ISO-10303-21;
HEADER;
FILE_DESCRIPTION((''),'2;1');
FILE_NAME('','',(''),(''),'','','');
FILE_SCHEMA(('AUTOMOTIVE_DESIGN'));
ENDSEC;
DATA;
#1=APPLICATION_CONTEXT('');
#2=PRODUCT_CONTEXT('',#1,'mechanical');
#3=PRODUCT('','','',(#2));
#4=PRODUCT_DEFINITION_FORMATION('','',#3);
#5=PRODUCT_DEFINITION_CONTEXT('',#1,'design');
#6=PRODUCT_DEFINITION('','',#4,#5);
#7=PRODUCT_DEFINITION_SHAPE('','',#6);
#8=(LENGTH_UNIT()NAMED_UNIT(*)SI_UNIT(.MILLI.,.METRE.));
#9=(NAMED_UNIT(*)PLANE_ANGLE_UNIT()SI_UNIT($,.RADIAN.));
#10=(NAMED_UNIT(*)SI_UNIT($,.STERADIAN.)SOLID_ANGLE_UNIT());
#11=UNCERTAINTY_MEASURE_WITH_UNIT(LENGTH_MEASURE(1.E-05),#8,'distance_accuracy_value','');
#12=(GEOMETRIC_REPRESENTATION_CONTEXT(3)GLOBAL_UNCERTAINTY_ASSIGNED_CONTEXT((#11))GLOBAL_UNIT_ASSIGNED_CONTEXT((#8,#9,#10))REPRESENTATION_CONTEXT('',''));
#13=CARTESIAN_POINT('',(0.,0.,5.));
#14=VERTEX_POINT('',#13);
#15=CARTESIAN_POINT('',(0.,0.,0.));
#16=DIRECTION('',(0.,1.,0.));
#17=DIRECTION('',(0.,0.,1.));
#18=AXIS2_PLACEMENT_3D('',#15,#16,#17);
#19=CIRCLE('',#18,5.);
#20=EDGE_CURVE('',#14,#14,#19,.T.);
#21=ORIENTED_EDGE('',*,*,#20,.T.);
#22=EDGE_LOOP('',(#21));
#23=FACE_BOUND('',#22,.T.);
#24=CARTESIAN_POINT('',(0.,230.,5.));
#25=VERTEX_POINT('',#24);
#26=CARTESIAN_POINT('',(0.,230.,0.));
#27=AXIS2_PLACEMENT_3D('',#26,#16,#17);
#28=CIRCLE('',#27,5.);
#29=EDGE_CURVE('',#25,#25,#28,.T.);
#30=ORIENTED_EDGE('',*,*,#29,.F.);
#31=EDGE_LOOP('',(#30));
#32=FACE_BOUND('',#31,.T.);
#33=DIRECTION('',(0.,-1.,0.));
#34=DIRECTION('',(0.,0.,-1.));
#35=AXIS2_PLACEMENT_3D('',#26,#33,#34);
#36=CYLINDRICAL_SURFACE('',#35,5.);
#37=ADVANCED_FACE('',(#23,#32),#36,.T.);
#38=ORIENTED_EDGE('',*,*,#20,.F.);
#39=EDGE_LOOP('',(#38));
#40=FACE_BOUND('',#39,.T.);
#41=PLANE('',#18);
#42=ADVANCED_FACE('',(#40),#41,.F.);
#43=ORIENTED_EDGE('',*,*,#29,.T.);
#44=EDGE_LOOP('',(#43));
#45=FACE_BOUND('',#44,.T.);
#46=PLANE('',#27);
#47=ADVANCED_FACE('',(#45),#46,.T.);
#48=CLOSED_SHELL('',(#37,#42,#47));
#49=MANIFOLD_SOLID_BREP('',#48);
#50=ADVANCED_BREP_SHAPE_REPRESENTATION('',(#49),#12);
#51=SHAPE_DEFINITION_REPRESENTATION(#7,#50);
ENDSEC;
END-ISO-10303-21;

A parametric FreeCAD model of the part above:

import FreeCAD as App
import Part
import Sketcher
from FreeCAD import Vector

doc = App.newDocument("Part")
body = doc.addObject("PartDesign::Body", "Body")

sketch1 = doc.addObject("Sketcher::SketchObject", "Sketch")
body.addObject(sketch1)
sketch1.AttachmentSupport = (doc.XZ_Plane, [""])
sketch1.MapMode = "FlatFace"
sketch1.addGeometry(Part.Circle(Vector(0, 0, 0), Vector(0, 0, 1), 5), False)
sketch1.addConstraint([
    Sketcher.Constraint("Coincident", 0, 3, -1, 1),
    Sketcher.Constraint("Diameter", 0, 10.0),
])
pad1 = doc.addObject("PartDesign::Pad", "Pad")
body.addObject(pad1)
pad1.Profile = sketch1
pad1.Length = 230
pad1.Reversed = True

doc.recompute()
